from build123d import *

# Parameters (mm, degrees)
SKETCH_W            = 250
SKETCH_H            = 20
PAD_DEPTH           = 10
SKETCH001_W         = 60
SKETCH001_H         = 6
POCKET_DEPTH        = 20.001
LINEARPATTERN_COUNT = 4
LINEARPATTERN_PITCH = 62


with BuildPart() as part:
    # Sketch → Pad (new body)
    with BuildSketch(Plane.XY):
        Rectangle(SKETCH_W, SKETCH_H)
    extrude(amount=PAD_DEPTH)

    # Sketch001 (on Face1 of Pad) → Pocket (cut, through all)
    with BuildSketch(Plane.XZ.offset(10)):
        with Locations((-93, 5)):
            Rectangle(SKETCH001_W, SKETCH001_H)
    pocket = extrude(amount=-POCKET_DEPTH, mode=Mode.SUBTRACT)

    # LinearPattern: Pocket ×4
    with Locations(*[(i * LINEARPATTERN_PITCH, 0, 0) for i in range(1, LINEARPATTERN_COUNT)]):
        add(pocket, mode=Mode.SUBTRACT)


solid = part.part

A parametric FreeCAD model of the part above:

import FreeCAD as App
import Part
import Sketcher
from FreeCAD import Vector


def add_polygon(sketch, points):
    """Adds a closed chain of lines whose ends are joined by coincident constraints."""
    first, n = sketch.GeometryCount, len(points)
    for a, b in zip(points, points[1:] + points[:1]):
        sketch.addGeometry(Part.LineSegment(App.Vector(*a, 0), App.Vector(*b, 0)), False)
    for i in range(n):
        sketch.addConstraint(Sketcher.Constraint("Coincident", first + i, 2, first + (i + 1) % n, 1))

doc = App.newDocument("Part")
params = doc.addObject("Spreadsheet::Sheet", "Params")
for row, (alias, value) in enumerate([
    ("sketch1_width", "250 mm"),
    ("sketch1_height", "20 mm"),
    ("pad1_length", "10 mm"),
    ("sketch2_width", "60 mm"),
    ("sketch2_height", "6 mm"),
    ("linearpattern_pitch", "62 mm"),
], start=1):
    params.set(f"A{row}", alias)
    params.set(f"B{row}", "=" + value)
    params.setAlias(f"B{row}", alias)

body = doc.addObject("PartDesign::Body", "Body")

# Sketch on XY plane
sketch1 = body.newObject("Sketcher::SketchObject", "Sketch")
sketch1.AttachmentSupport = (doc.getObject("XY_Plane"), [""])
sketch1.MapMode = "FlatFace"
add_polygon(sketch1, [(-125, 10), (-125, -10), (125, -10), (125, 10)])  # lines 0-3
sketch1.addConstraint([
    Sketcher.Constraint("Vertical", 0),
    Sketcher.Constraint("Horizontal", 1),
    Sketcher.Constraint("Vertical", 2),
    Sketcher.Constraint("Horizontal", 3),
    Sketcher.Constraint("Symmetric", 0, 2, 2, 2, -1, 1),
    Sketcher.Constraint("DistanceX", 1, 1, 1, 2, 250.0),
    Sketcher.Constraint("DistanceY", 0, 2, 0, 1, 20.0),
])
sketch1.setExpression("Constraints[9]", "Params.sketch1_width")
sketch1.setExpression("Constraints[10]", "Params.sketch1_height")
pad1 = body.newObject("PartDesign::Pad", "Pad")
pad1.Profile = sketch1
pad1.setExpression("Length", "Params.pad1_length")

# Sketch on XZ plane
sketch2 = body.newObject("Sketcher::SketchObject", "Sketch001")
sketch2.AttachmentSupport = (doc.getObject("XZ_Plane"), [""])
sketch2.MapMode = "FlatFace"
sketch2.AttachmentOffset = App.Placement(Vector(0, 0, 10), App.Rotation())
add_polygon(sketch2, [(-123, 8), (-123, 2), (-63, 2), (-63, 8)])  # lines 0-3
sketch2.addConstraint([
    Sketcher.Constraint("Vertical", 0),
    Sketcher.Constraint("Horizontal", 1),
    Sketcher.Constraint("Vertical", 2),
    Sketcher.Constraint("Horizontal", 3),
    Sketcher.Constraint("DistanceX", 1, 1, 1, 2, 60.0),
    Sketcher.Constraint("DistanceY", 0, 2, 0, 1, 6.0),
    Sketcher.Constraint("DistanceX", 0, 2, -1, 1, 123.0),
    Sketcher.Constraint("DistanceY", -1, 1, 0, 2, 2.0),
])
sketch2.setExpression("Constraints[8]", "Params.sketch2_width")
sketch2.setExpression("Constraints[9]", "Params.sketch2_height")
pocket1 = body.newObject("PartDesign::Pocket", "Pocket")
pocket1.Profile = sketch2
pocket1.Type = "ThroughAll"
doc.recompute()

linearpattern = body.newObject("PartDesign::LinearPattern", "LinearPattern")
linearpattern.Originals = [pocket1]
linearpattern.Direction = (doc.getObject("X_Axis"), [""])
linearpattern.Mode = "offset"
linearpattern.setExpression("Offset", "Params.linearpattern_pitch")
linearpattern.Occurrences = 4
body.Tip = linearpattern

doc.recompute()
